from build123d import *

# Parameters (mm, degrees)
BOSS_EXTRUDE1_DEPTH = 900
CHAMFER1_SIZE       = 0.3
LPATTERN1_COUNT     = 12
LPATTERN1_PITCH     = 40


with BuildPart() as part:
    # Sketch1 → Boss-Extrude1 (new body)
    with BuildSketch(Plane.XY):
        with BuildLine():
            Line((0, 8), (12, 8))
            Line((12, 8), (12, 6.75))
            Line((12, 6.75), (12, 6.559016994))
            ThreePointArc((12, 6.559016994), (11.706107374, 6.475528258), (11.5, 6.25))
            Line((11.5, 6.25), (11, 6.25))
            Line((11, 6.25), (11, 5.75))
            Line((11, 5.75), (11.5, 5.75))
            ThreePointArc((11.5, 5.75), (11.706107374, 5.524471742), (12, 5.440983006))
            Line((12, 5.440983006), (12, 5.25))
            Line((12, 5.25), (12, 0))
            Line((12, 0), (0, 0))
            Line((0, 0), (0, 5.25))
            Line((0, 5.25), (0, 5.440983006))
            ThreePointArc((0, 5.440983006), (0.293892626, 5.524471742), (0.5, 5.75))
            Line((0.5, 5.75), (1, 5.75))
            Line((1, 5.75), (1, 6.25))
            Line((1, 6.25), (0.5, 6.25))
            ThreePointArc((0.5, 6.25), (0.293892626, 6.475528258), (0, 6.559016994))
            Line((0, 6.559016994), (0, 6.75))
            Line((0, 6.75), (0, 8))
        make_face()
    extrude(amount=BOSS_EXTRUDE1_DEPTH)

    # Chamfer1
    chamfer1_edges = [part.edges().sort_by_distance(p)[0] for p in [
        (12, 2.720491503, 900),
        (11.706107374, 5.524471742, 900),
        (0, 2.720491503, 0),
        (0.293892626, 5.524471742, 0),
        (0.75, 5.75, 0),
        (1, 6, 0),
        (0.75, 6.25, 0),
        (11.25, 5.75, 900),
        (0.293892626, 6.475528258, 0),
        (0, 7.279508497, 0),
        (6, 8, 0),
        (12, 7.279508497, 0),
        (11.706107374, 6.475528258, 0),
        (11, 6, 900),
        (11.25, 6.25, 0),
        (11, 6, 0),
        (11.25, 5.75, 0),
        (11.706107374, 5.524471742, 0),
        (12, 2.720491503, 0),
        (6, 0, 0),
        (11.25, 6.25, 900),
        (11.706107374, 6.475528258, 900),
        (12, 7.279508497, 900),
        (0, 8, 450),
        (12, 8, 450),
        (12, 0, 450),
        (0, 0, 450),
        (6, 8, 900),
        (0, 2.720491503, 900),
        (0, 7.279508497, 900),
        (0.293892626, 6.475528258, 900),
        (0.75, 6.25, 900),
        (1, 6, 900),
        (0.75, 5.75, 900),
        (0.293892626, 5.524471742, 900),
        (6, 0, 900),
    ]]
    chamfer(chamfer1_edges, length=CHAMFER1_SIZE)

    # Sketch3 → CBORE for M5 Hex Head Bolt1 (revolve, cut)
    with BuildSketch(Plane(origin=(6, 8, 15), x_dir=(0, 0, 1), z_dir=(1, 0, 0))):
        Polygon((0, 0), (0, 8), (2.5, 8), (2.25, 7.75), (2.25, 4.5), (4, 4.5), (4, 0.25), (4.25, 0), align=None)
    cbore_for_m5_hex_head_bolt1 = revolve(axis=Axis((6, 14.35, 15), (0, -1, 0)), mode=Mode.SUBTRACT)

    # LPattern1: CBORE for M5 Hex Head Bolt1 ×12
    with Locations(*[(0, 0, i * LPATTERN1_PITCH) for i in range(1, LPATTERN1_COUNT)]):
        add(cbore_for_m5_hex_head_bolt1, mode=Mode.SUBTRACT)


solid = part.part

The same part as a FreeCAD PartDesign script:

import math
import FreeCAD as App
import Part
import Sketcher
from FreeCAD import Vector
Q = App.Units.Quantity


def edges_at(feature, points):
    """Names of the edges that pass closest to the given points."""
    edges = feature.Shape.Edges
    near = lambda p: min(range(len(edges)), key=lambda i: edges[i].distToShape(Part.Vertex(*p))[0])
    return sorted({f"Edge{near(p) + 1}" for p in points})

doc = App.newDocument("Part")
params = doc.addObject("Spreadsheet::Sheet", "Params")
for row, (alias, value) in enumerate([
    ("sketch1_width", "12 mm"),
    ("sketch1_width2", "0.5 mm"),
    ("pad1_length", "900 mm"),
    ("chamfer_size", "0.3 mm"),
    ("sketch2_width", "8 mm"),
    ("sketch2_height", "2.5 mm"),
    ("groove_angle", "360 deg"),
    ("linearpattern_pitch", "40 mm"),
], start=1):
    params.set(f"A{row}", alias)
    params.set(f"B{row}", "=" + value)
    params.setAlias(f"B{row}", alias)

body = doc.addObject("PartDesign::Body", "Body")

# Sketch on XY plane
sketch1 = doc.addObject("Sketcher::SketchObject", "Sketch")
body.addObject(sketch1)
sketch1.AttachmentSupport = (doc.XY_Plane, [""])
sketch1.MapMode = "FlatFace"
sketch1.addGeometry([
    Part.LineSegment(Vector(12, 8, 0), Vector(0, 8, 0)),  # 0
    Part.LineSegment(Vector(0, 8, 0), Vector(0, 6.559017, 0)),  # 1
    Part.ArcOfCircle(Part.Circle(Vector(0, 6, 0), Vector(0, 0, 1), 0.559017), math.radians(26.565051), math.radians(90)),  # 2
    Part.LineSegment(Vector(0.5, 6.25, 0), Vector(1, 6.25, 0)),  # 3
    Part.LineSegment(Vector(1, 6.25, 0), Vector(1, 5.75, 0)),  # 4
    Part.LineSegment(Vector(1, 5.75, 0), Vector(0.5, 5.75, 0)),  # 5
    Part.ArcOfCircle(Part.Circle(Vector(0, 6, 0), Vector(0, 0, 1), 0.559017), math.radians(-90), math.radians(-26.565051)),  # 6
    Part.LineSegment(Vector(0, 5.440983, 0), Vector(0, 0, 0)),  # 7
    Part.LineSegment(Vector(0, 0, 0), Vector(12, 0, 0)),  # 8
    Part.LineSegment(Vector(12, 0, 0), Vector(12, 5.440983, 0)),  # 9
    Part.ArcOfCircle(Part.Circle(Vector(12, 6, 0), Vector(0, 0, 1), 0.559017), math.radians(-153.434949), math.radians(-90)),  # 10
    Part.LineSegment(Vector(11.5, 5.75, 0), Vector(11, 5.75, 0)),  # 11
    Part.LineSegment(Vector(11, 5.75, 0), Vector(11, 6.25, 0)),  # 12
    Part.LineSegment(Vector(11, 6.25, 0), Vector(11.5, 6.25, 0)),  # 13
    Part.ArcOfCircle(Part.Circle(Vector(12, 6, 0), Vector(0, 0, 1), 0.559017), math.radians(90), math.radians(153.434949)),  # 14
    Part.LineSegment(Vector(12, 6.559017, 0), Vector(12, 8, 0)),  # 15
], False)
sketch1.addConstraint([
    Sketcher.Constraint("Coincident", 0, 2, 1, 1),
    Sketcher.Constraint("Coincident", 1, 2, 2, 2),
    Sketcher.Constraint("Coincident", 2, 1, 3, 1),
    Sketcher.Constraint("Coincident", 3, 2, 4, 1),
    Sketcher.Constraint("Coincident", 4, 2, 5, 1),
    Sketcher.Constraint("Coincident", 5, 2, 6, 2),
    Sketcher.Constraint("Coincident", 6, 1, 7, 1),
    Sketcher.Constraint("Coincident", 7, 2, 8, 1),
    Sketcher.Constraint("Coincident", 8, 2, 9, 1),
    Sketcher.Constraint("Coincident", 9, 2, 10, 2),
    Sketcher.Constraint("Coincident", 10, 1, 11, 1),
    Sketcher.Constraint("Coincident", 11, 2, 12, 1),
    Sketcher.Constraint("Coincident", 12, 2, 13, 1),
    Sketcher.Constraint("Coincident", 13, 2, 14, 2),
    Sketcher.Constraint("Coincident", 14, 1, 15, 1),
    Sketcher.Constraint("Coincident", 15, 2, 0, 1),
    Sketcher.Constraint("Horizontal", 0),
    Sketcher.Constraint("Vertical", 1),
    Sketcher.Constraint("Horizontal", 3),
    Sketcher.Constraint("Vertical", 4),
    Sketcher.Constraint("Horizontal", 5),
    Sketcher.Constraint("Vertical", 7),
    Sketcher.Constraint("Horizontal", 8),
    Sketcher.Constraint("Vertical", 9),
    Sketcher.Constraint("Horizontal", 11),
    Sketcher.Constraint("Vertical", 12),
    Sketcher.Constraint("Horizontal", 13),
    Sketcher.Constraint("Vertical", 15),
    Sketcher.Constraint("Coincident", 7, 2, -1, 1),
    Sketcher.Constraint("Coincident", 6, 3, 2, 3),
    Sketcher.Constraint("Coincident", 14, 3, 10, 3),
    Sketcher.Constraint("Equal", 2, 6),
    Sketcher.Constraint("Equal", 6, 10),
    Sketcher.Constraint("Equal", 10, 14),
    Sketcher.Constraint("PointOnObject", 2, 3, -2),
    Sketcher.Constraint("PointOnObject", 0, 2, -2),
    Sketcher.Constraint("Horizontal", 6, 3, 10, 3),
    Sketcher.Constraint("Horizontal", 5, 2, 10, 1),
    Sketcher.Constraint("Horizontal", 3, 2, 12, 2),
    Sketcher.Constraint("Vertical", 2, 1, 5, 2),
    Sketcher.Constraint("Vertical", 14, 3, 8, 2),
    Sketcher.Constraint("Vertical", 9, 2, 14, 1),
    Sketcher.Constraint("Equal", 5, 11),
    Sketcher.Constraint("Equal", 13, 4),
    Sketcher.Constraint("DistanceX", 0, 2, 0, 1, 12.0),
    Sketcher.Constraint("DistanceX", 3, 1, 3, 2, 0.5),
    Sketcher.Constraint("DistanceY", -1, 1, 2, 3, 6.0),
    Sketcher.Constraint("DistanceY", -1, 1, 0, 2, 8.0),
    Sketcher.Constraint("DistanceX", -1, 1, 3, 2, 1.0),
])
sketch1.setExpression("Constraints[44]", "Params.sketch1_width")
sketch1.setExpression("Constraints[45]", "Params.sketch1_width2")
pad1 = doc.addObject("PartDesign::Pad", "Pad")
body.addObject(pad1)
pad1.Profile = sketch1
pad1.setExpression("Length", "Params.pad1_length")
doc.recompute()

chamfer = doc.addObject("PartDesign::Chamfer", "Chamfer")
body.addObject(chamfer)
chamfer.Base = (pad1, edges_at(pad1, [
    (12, 2.72, 900),
    (11.706, 5.524, 900),
    (0, 2.72, 0),
    (0.294, 5.524, 0),
    (0.75, 5.75, 0),
    (1, 6, 0),
    (0.75, 6.25, 0),
    (11.25, 5.75, 900),
    (0.294, 6.476, 0),
    (0, 7.28, 0),
    (6, 8, 0),
    (12, 7.28, 0),
    (11.706, 6.476, 0),
    (11, 6, 900),
    (11.25, 6.25, 0),
    (11, 6, 0),
    (11.25, 5.75, 0),
    (11.706, 5.524, 0),
    (12, 2.72, 0),
    (6, 0, 0),
    (11.25, 6.25, 900),
    (11.706, 6.476, 900),
    (12, 7.28, 900),
    (0, 8, 450),
    (12, 8, 450),
    (12, 0, 450),
    (0, 0, 450),
    (6, 8, 900),
    (0, 2.72, 900),
    (0, 7.28, 900),
    (0.294, 6.476, 900),
    (0.75, 6.25, 900),
    (1, 6, 900),
    (0.75, 5.75, 900),
    (0.294, 5.524, 900),
    (6, 0, 900),
]))
chamfer.setExpression("Size", "Params.chamfer_size")

# Sketch on YZ plane
sketch2 = doc.addObject("Sketcher::SketchObject", "Sketch001")
body.addObject(sketch2)
sketch2.AttachmentSupport = (doc.YZ_Plane, [""])
sketch2.MapMode = "FlatFace"
sketch2.AttachmentOffset = App.Placement(Vector(0, 0, 6), App.Rotation())
sketch2.addGeometry([
    Part.LineSegment(Vector(0, 15, 0), Vector(8, 15, 0)),  # 0
    Part.LineSegment(Vector(8, 15, 0), Vector(8, 19.25, 0)),  # 1
    Part.LineSegment(Vector(8, 19.25, 0), Vector(7.75, 19, 0)),  # 2
    Part.LineSegment(Vector(7.75, 19, 0), Vector(3.5, 19, 0)),  # 3
    Part.LineSegment(Vector(3.5, 19, 0), Vector(3.5, 17.25, 0)),  # 4
    Part.LineSegment(Vector(3.5, 17.25, 0), Vector(0.25, 17.25, 0)),  # 5
    Part.LineSegment(Vector(0.25, 17.25, 0), Vector(0, 17.5, 0)),  # 6
    Part.LineSegment(Vector(0, 17.5, 0), Vector(0, 15, 0)),  # 7
], False)
sketch2.addGeometry(Part.LineSegment(Vector(8, 15, 0), Vector(0, 15, 0)), True)  # axis
sketch2.addConstraint([
    Sketcher.Constraint("Coincident", 0, 2, 1, 1),
    Sketcher.Constraint("Coincident", 1, 2, 2, 1),
    Sketcher.Constraint("Coincident", 2, 2, 3, 1),
    Sketcher.Constraint("Coincident", 3, 2, 4, 1),
    Sketcher.Constraint("Coincident", 4, 2, 5, 1),
    Sketcher.Constraint("Coincident", 5, 2, 6, 1),
    Sketcher.Constraint("Coincident", 6, 2, 7, 1),
    Sketcher.Constraint("Coincident", 7, 2, 0, 1),
    Sketcher.Constraint("Horizontal", 0),
    Sketcher.Constraint("Vertical", 1),
    Sketcher.Constraint("Horizontal", 3),
    Sketcher.Constraint("Vertical", 4),
    Sketcher.Constraint("Horizontal", 5),
    Sketcher.Constraint("Vertical", 7),
    Sketcher.Constraint("Horizontal", 8),
    Sketcher.Constraint("Coincident", 8, 1, 0, 2),
    Sketcher.Constraint("PointOnObject", 6, 2, -2),
    Sketcher.Constraint("PointOnObject", 8, 2, -2),
    Sketcher.Constraint("Perpendicular", 2, 6),
    Sketcher.Constraint("Equal", 3, 1),
    Sketcher.Constraint("Equal", 2, 6),
    Sketcher.Constraint("DistanceX", 0, 1, 0, 2, 8.0),
    Sketcher.Constraint("Angle", 2, Q("-135 deg")),
    Sketcher.Constraint("DistanceY", 7, 2, 7, 1, 2.5),
    Sketcher.Constraint("DistanceY", -1, 1, 0, 2, 15.0),
    Sketcher.Constraint("DistanceY", -1, 1, 2, 2, 19.0),
    Sketcher.Constraint("DistanceY", 4, 2, 1, 2, 2.0),
])
sketch2.setExpression("Constraints[21]", "Params.sketch2_width")
sketch2.setExpression("Constraints[23]", "Params.sketch2_height")
groove = doc.addObject("PartDesign::Groove", "Groove")
body.addObject(groove)
groove.Profile = sketch2
groove.ReferenceAxis = (sketch2, ["Axis0"])
groove.setExpression("Angle", "Params.groove_angle")
doc.recompute()

linearpattern = doc.addObject("PartDesign::LinearPattern", "LinearPattern")
body.addObject(linearpattern)
linearpattern.Originals = [groove]
linearpattern.Direction = (doc.Z_Axis, [""])
linearpattern.Mode = "offset"
linearpattern.setExpression("Offset", "Params.linearpattern_pitch")
linearpattern.Occurrences = 12
body.Tip = linearpattern

doc.recompute()
